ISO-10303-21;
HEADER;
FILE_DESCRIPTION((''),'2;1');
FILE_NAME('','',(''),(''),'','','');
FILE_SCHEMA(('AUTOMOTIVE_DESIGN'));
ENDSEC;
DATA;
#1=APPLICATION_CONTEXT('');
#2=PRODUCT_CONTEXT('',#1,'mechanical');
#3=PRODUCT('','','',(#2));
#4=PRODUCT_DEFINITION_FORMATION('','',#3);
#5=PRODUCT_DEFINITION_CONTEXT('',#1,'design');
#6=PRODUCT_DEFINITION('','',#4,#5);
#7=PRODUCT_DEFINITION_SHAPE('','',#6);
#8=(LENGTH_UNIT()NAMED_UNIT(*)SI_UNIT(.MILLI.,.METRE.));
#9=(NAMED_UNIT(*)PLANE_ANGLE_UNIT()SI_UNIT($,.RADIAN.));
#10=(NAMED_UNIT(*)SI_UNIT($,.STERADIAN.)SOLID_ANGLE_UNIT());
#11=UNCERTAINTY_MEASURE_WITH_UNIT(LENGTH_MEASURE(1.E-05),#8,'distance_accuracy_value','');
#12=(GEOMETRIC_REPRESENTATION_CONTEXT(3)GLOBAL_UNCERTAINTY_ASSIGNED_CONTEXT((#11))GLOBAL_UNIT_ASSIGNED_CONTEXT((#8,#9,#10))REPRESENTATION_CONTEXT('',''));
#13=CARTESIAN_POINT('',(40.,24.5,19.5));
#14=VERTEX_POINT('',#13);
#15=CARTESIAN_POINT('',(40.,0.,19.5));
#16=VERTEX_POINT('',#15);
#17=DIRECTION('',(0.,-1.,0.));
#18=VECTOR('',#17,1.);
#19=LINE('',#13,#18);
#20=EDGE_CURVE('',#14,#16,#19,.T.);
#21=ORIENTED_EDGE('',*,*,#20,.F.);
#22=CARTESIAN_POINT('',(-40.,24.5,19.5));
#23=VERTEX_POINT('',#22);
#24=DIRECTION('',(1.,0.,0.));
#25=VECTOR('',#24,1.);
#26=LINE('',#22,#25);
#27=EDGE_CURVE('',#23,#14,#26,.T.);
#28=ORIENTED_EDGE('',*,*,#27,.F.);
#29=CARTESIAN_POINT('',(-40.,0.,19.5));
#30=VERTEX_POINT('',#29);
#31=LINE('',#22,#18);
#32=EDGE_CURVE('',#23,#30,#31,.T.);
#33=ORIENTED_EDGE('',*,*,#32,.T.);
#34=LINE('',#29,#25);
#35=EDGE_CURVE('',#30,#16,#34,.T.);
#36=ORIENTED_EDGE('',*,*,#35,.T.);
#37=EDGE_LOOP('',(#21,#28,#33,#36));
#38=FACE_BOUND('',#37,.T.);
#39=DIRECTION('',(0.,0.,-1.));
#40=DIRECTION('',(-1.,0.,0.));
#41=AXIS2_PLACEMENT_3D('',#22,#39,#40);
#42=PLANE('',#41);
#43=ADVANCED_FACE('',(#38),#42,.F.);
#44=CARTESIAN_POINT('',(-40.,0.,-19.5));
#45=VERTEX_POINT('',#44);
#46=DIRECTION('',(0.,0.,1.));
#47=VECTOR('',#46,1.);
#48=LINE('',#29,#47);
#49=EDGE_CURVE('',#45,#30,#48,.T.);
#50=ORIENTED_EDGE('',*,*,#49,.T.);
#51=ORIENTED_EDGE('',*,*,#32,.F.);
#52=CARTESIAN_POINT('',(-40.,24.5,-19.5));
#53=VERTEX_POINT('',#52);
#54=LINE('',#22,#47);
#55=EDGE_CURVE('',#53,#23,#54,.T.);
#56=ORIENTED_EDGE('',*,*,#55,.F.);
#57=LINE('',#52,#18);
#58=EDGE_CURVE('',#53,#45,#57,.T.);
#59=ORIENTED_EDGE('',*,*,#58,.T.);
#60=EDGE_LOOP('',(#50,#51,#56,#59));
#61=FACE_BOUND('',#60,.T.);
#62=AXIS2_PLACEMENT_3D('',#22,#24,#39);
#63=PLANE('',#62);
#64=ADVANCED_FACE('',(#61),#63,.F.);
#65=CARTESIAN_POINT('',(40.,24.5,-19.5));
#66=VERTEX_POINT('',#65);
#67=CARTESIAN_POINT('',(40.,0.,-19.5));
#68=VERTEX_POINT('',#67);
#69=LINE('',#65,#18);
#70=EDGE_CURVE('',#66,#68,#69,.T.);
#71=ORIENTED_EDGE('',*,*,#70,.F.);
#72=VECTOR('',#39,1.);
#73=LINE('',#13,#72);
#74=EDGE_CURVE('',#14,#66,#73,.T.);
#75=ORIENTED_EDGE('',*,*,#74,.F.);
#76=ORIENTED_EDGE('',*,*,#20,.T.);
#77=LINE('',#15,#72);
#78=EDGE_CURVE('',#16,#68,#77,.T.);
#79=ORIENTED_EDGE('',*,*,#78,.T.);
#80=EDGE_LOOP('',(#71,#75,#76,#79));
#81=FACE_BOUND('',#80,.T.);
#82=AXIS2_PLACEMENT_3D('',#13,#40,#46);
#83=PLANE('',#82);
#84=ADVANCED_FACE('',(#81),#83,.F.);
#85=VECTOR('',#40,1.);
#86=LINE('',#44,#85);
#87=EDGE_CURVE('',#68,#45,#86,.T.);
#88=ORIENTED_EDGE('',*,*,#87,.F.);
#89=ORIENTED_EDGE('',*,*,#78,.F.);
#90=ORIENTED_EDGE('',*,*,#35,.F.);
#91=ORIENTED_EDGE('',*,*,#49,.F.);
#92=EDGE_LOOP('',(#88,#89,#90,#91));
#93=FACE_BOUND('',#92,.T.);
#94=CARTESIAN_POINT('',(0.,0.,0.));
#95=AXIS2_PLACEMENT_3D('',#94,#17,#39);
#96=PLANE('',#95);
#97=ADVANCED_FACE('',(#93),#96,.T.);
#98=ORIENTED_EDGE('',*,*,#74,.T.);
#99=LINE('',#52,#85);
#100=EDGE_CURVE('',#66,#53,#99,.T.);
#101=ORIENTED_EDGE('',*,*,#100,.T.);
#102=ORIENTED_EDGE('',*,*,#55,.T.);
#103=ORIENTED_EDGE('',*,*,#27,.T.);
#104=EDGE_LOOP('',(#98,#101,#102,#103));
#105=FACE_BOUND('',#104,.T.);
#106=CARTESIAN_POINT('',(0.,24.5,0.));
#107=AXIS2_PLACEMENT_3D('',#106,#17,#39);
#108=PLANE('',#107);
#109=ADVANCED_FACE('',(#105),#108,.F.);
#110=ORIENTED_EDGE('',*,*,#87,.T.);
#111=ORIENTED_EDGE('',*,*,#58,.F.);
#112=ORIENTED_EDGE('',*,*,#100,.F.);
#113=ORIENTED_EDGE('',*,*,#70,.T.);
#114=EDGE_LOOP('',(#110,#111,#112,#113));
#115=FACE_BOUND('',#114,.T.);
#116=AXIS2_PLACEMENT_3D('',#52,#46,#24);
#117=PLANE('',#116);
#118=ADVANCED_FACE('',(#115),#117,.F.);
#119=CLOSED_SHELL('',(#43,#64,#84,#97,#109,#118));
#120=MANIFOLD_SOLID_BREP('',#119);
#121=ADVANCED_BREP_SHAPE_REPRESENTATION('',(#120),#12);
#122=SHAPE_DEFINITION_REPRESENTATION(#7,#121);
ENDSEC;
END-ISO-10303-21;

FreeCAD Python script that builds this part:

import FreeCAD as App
import Part
import Sketcher
Q = App.Units.Quantity


def add_polygon(sketch, points):
    """Adds a closed chain of lines whose ends are joined by coincident constraints."""
    first, n = sketch.GeometryCount, len(points)
    for a, b in zip(points, points[1:] + points[:1]):
        sketch.addGeometry(Part.LineSegment(App.Vector(*a, 0), App.Vector(*b, 0)), False)
    for i in range(n):
        sketch.addConstraint(Sketcher.Constraint("Coincident", first + i, 2, first + (i + 1) % n, 1))

doc = App.newDocument("Part")
body = doc.addObject("PartDesign::Body", "Body")

# Sketch on XZ plane
sketch1 = body.newObject("Sketcher::SketchObject", "Sketch")
sketch1.AttachmentSupport = (doc.getObject("XZ_Plane"), [""])
sketch1.MapMode = "FlatFace"
add_polygon(sketch1, [(-40, -20), (-40, 20), (40, 20), (40, -20)])  # lines 0-3
sketch1.addConstraint(Sketcher.Constraint("Vertical", 0))
sketch1.addConstraint(Sketcher.Constraint("Horizontal", 1))
sketch1.addConstraint(Sketcher.Constraint("Vertical", 2))
sketch1.addConstraint(Sketcher.Constraint("Horizontal", 3))
sketch1.addConstraint(Sketcher.Constraint("Symmetric", 0, 2, 2, 2, -1, 1))
sketch1.addConstraint(Sketcher.Constraint("DistanceX", 1, 1, 1, 2, Q("80 mm")))
sketch1.addConstraint(Sketcher.Constraint("DistanceY", 0, 1, 0, 2, Q("39 mm")))
pad1 = body.newObject("PartDesign::Pad", "Pad")
pad1.Profile = sketch1
pad1.Length = 24.5
pad1.Reversed = True

doc.recompute()
